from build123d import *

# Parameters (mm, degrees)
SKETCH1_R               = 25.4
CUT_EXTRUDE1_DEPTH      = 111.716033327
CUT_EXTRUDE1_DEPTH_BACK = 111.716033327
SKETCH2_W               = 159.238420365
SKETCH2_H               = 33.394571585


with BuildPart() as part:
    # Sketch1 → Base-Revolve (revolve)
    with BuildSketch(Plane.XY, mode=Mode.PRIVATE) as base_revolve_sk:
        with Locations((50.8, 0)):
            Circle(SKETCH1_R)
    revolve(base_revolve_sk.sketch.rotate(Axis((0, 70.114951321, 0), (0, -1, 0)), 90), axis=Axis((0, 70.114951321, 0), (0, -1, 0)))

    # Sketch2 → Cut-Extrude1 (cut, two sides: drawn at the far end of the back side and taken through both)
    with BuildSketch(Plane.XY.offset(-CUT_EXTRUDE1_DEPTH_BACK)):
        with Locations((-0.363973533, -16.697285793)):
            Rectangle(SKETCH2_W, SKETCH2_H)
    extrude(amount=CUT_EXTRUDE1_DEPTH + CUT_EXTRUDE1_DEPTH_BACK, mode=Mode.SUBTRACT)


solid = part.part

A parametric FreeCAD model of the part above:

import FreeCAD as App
import Part
import Sketcher
from FreeCAD import Vector
Q = App.Units.Quantity


def add_polygon(sketch, points):
    """Adds a closed chain of lines whose ends are joined by coincident constraints."""
    first, n = sketch.GeometryCount, len(points)
    for a, b in zip(points, points[1:] + points[:1]):
        sketch.addGeometry(Part.LineSegment(App.Vector(*a, 0), App.Vector(*b, 0)), False)
    for i in range(n):
        sketch.addConstraint(Sketcher.Constraint("Coincident", first + i, 2, first + (i + 1) % n, 1))

doc = App.newDocument("Part")
params = doc.addObject("Spreadsheet::Sheet", "Params")
for row, (alias, value) in enumerate([
    ("sketch1_diameter", "2 in"),
    ("revolution_angle", "360 deg"),
], start=1):
    params.set(f"A{row}", alias)
    params.set(f"B{row}", "=" + value)
    params.setAlias(f"B{row}", alias)

body = doc.addObject("PartDesign::Body", "Body")

# Sketch on XY plane
sketch1 = body.newObject("Sketcher::SketchObject", "Sketch")
sketch1.AttachmentSupport = (doc.getObject("XY_Plane"), [""])
sketch1.MapMode = "FlatFace"
sketch1.addGeometry(Part.Circle(Vector(51, 0, 0), Vector(0, 0, 1), 25), False)
sketch1.addConstraint(Sketcher.Constraint("PointOnObject", 0, 3, -1))
sketch1.addConstraint(Sketcher.Constraint("Diameter", 0, Q("2 in")))
sketch1.addConstraint(Sketcher.Constraint("DistanceX", -1, 1, 0, 3, Q("2 in")))
sketch1.setExpression("Constraints[1]", "Params.sketch1_diameter")
revolution = body.newObject("PartDesign::Revolution", "Revolution")
revolution.Profile = sketch1
revolution.ReferenceAxis = (sketch1, ["V_Axis"])
revolution.setExpression("Angle", "Params.revolution_angle")

# Sketch on XY plane
sketch2 = body.newObject("Sketcher::SketchObject", "Sketch001")
sketch2.AttachmentSupport = (doc.getObject("XY_Plane"), [""])
sketch2.MapMode = "FlatFace"
add_polygon(sketch2, [(-80, 0), (-80, -33), (79, -33), (79, 0)])  # lines 0-3
sketch2.addConstraint(Sketcher.Constraint("Vertical", 0))
sketch2.addConstraint(Sketcher.Constraint("Horizontal", 1))
sketch2.addConstraint(Sketcher.Constraint("Vertical", 2))
sketch2.addConstraint(Sketcher.Constraint("Horizontal", 3))
sketch2.addConstraint(Sketcher.Constraint("PointOnObject", 2, 2, -1))
sketch2.addConstraint(Sketcher.Constraint("DistanceX", 1, 1, 1, 2, Q("159.23842 mm")))
sketch2.addConstraint(Sketcher.Constraint("DistanceY", 0, 2, 0, 1, Q("33.394572 mm")))
sketch2.addConstraint(Sketcher.Constraint("DistanceX", 0, 2, -1, 1, Q("79.983184 mm")))
pocket1 = body.newObject("PartDesign::Pocket", "Pocket")
pocket1.Profile = sketch2
pocket1.Type = "ThroughAll"
pocket1.Midplane = True

doc.recompute()
